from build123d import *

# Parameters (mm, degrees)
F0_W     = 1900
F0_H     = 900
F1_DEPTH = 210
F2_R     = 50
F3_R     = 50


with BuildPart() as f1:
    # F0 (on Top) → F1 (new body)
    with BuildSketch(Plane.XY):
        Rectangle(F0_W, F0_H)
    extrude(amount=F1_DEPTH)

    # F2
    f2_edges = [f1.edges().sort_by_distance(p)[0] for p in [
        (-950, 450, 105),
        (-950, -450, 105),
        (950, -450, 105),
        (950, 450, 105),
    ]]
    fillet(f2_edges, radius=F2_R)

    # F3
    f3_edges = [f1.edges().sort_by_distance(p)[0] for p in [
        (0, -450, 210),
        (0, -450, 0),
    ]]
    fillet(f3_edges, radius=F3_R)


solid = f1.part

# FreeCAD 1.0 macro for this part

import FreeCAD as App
import Part
import Sketcher

V = App.Vector


def edges_at(feature, points):
    """Names of the edges that pass closest to the given points."""
    edges = feature.Shape.Edges
    near = lambda p: min(range(len(edges)), key=lambda i: edges[i].distToShape(Part.Vertex(*p))[0])
    return sorted({f"Edge{near(p) + 1}" for p in points})


def add_polygon(sketch, points):
    """Adds a closed chain of lines whose ends are joined by coincident constraints."""
    first, n = sketch.GeometryCount, len(points)
    for a, b in zip(points, points[1:] + points[:1]):
        sketch.addGeometry(Part.LineSegment(App.Vector(*a, 0), App.Vector(*b, 0)), False)
    for i in range(n):
        sketch.addConstraint(Sketcher.Constraint("Coincident", first + i, 2, first + (i + 1) % n, 1))

doc = App.newDocument("Part")
params = doc.addObject("Spreadsheet::Sheet", "Params")
for row, (alias, value) in enumerate([
    ("sketch1_width", "1900 mm"),
    ("sketch1_height", "900 mm"),
    ("pad1_length", "210 mm"),
    ("fillet_radius", "50 mm"),
    ("fillet2_radius", "50 mm"),
], start=1):
    params.set(f"A{row}", alias)
    params.set(f"B{row}", "=" + value)
    params.setAlias(f"B{row}", alias)

body = doc.addObject("PartDesign::Body", "Body")

sketch1 = body.newObject("Sketcher::SketchObject", "Sketch")
sketch1.AttachmentSupport = (doc.getObject("XY_Plane"), [""])
sketch1.MapMode = "FlatFace"
add_polygon(sketch1, [(-950, 450), (-950, -450), (950, -450), (950, 450)])
sketch1.addConstraint(Sketcher.Constraint("Vertical", 0))
sketch1.addConstraint(Sketcher.Constraint("Horizontal", 1))
sketch1.addConstraint(Sketcher.Constraint("Vertical", 2))
sketch1.addConstraint(Sketcher.Constraint("Horizontal", 3))
sketch1.addConstraint(Sketcher.Constraint("Symmetric", 0, 2, 2, 2, -1, 1))
sketch1.addConstraint(Sketcher.Constraint("DistanceX", 1, 1, 1, 2, 1900.0))
sketch1.addConstraint(Sketcher.Constraint("DistanceY", 0, 2, 0, 1, 900.0))
sketch1.setExpression("Constraints[9]", "Params.sketch1_width")
sketch1.setExpression("Constraints[10]", "Params.sketch1_height")
pad1 = body.newObject("PartDesign::Pad", "Pad")
pad1.Profile = sketch1
pad1.setExpression("Length", "Params.pad1_length")
doc.recompute()

fillet = body.newObject("PartDesign::Fillet", "Fillet")
fillet.Base = (pad1, edges_at(pad1, [
    (-950, 450, 105),
    (-950, -450, 105),
    (950, -450, 105),
    (950, 450, 105),
]))
fillet.setExpression("Radius", "Params.fillet_radius")
doc.recompute()

fillet2 = body.newObject("PartDesign::Fillet", "Fillet001")
fillet2.Base = (fillet, edges_at(fillet, [(0, -450, 210), (0, -450, 0)]))
fillet2.setExpression("Radius", "Params.fillet2_radius")

doc.recompute()
